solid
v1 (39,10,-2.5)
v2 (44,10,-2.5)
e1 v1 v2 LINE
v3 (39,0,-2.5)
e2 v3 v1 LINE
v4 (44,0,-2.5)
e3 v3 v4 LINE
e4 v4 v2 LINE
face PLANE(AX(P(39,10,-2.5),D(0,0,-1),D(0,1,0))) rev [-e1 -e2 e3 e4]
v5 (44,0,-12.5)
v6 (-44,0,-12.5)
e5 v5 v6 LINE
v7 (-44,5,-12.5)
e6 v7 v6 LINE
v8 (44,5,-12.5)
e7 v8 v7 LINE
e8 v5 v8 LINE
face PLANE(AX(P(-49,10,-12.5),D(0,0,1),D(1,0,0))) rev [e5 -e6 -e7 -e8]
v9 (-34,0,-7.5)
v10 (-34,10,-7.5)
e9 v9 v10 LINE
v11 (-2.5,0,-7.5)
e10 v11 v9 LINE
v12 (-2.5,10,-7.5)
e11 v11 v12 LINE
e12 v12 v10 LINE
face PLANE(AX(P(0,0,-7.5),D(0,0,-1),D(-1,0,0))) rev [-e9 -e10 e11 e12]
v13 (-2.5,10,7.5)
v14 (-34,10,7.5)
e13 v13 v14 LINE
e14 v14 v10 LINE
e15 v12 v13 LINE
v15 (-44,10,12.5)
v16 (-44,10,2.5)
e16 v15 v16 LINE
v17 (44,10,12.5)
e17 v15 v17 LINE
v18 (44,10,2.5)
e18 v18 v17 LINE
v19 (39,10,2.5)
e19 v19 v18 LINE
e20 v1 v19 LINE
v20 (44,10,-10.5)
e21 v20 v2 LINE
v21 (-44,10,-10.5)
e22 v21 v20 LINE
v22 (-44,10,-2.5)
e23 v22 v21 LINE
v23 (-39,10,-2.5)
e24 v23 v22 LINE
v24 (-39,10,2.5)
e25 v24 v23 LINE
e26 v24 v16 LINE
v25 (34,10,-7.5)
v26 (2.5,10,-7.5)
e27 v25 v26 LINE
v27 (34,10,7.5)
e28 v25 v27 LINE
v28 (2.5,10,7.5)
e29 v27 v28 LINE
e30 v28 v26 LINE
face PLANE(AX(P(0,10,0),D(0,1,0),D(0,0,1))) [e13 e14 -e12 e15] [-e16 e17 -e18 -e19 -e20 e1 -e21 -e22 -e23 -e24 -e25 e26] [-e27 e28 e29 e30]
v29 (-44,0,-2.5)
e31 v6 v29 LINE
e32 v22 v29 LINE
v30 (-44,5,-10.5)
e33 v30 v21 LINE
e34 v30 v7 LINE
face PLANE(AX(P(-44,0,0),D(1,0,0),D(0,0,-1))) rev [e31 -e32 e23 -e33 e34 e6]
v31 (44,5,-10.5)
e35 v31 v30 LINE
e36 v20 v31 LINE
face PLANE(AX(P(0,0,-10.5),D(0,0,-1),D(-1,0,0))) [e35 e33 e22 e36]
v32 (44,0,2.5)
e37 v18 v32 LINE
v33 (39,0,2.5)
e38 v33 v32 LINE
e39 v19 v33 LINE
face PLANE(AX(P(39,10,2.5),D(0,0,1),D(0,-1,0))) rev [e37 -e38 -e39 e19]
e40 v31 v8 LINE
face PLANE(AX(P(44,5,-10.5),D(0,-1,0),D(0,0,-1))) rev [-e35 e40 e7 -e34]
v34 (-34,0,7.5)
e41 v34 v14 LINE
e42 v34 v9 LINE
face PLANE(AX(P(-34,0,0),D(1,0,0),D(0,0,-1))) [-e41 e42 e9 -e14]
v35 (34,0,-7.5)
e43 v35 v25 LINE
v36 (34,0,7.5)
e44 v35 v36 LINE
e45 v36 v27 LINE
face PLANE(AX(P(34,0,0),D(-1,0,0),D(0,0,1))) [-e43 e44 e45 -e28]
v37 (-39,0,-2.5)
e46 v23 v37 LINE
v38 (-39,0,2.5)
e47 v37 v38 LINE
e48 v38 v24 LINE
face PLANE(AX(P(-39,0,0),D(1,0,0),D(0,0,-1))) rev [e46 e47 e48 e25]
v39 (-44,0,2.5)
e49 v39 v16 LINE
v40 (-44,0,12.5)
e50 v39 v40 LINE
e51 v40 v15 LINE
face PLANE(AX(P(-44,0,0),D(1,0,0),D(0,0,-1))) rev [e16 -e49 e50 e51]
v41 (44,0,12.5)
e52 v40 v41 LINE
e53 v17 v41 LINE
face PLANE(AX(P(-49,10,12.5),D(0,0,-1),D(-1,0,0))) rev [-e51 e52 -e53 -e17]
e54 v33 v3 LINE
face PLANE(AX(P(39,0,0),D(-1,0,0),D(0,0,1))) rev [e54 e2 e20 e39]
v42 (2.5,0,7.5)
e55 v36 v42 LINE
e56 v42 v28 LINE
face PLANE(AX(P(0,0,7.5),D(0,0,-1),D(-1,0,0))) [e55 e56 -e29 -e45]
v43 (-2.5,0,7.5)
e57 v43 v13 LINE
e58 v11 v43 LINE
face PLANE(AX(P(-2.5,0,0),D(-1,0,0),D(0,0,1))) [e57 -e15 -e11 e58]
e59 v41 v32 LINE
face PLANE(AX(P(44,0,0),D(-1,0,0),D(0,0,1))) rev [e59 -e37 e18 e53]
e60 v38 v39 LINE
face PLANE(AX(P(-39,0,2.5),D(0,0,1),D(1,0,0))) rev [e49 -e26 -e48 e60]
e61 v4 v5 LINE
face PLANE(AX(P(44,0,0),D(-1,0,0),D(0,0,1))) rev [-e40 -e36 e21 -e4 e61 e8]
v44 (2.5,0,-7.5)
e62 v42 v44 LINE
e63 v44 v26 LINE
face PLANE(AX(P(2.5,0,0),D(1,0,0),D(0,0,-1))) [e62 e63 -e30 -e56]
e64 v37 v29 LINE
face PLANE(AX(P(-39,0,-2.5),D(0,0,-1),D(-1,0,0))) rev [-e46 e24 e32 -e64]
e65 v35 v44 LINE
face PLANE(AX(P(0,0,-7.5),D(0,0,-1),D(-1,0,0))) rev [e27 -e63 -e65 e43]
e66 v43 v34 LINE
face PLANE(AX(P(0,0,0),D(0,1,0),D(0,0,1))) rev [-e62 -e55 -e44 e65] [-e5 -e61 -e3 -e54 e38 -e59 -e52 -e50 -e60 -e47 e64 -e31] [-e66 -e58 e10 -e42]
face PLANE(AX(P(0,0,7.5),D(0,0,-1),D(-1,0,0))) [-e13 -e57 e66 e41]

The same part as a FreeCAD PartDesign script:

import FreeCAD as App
import Part
import Sketcher


def add_polygon(sketch, points):
    """Adds a closed chain of lines whose ends are joined by coincident constraints."""
    first, n = sketch.GeometryCount, len(points)
    for a, b in zip(points, points[1:] + points[:1]):
        sketch.addGeometry(Part.LineSegment(App.Vector(*a, 0), App.Vector(*b, 0)), False)
    for i in range(n):
        sketch.addConstraint(Sketcher.Constraint("Coincident", first + i, 2, first + (i + 1) % n, 1))

doc = App.newDocument("Part")
params = doc.addObject("Spreadsheet::Sheet", "Params")
for row, (alias, value) in enumerate([
    ("sketch1_width", "98 mm"),
    ("sketch1_height", "25 mm"),
    ("pad1_length", "10 mm"),
    ("sketch2_height", "15 mm"),
    ("sketch2_width", "31.5 mm"),
    ("pocket1_length", "10 mm"),
    ("sketch3_width", "10 mm"),
    ("sketch3_height", "25 mm"),
    ("pocket2_length", "5 mm"),
    ("sketch4_width", "10 mm"),
    ("sketch4_height", "25 mm"),
    ("pocket3_length", "5 mm"),
    ("sketch5_width", "10 mm"),
    ("sketch5_height", "5 mm"),
    ("pocket4_length", "5 mm"),
    ("sketch6_width", "10 mm"),
    ("sketch6_height", "5 mm"),
    ("pocket5_length", "5 mm"),
    ("sketch7_width", "88 mm"),
    ("sketch7_height", "5 mm"),
    ("pocket6_length", "2 mm"),
], start=1):
    params.set(f"A{row}", alias)
    params.set(f"B{row}", "=" + value)
    params.setAlias(f"B{row}", alias)

body = doc.addObject("PartDesign::Body", "Body")

sketch1 = body.newObject("Sketcher::SketchObject", "Sketch")
sketch1.AttachmentSupport = (doc.getObject("XZ_Plane"), [""])
sketch1.MapMode = "FlatFace"
add_polygon(sketch1, [(-49, -12.5), (-49, 12.5), (49, 12.5), (49, -12.5)])
sketch1.addConstraint(Sketcher.Constraint("Vertical", 0))
sketch1.addConstraint(Sketcher.Constraint("Horizontal", 1))
sketch1.addConstraint(Sketcher.Constraint("Vertical", 2))
sketch1.addConstraint(Sketcher.Constraint("Horizontal", 3))
sketch1.addConstraint(Sketcher.Constraint("Symmetric", 0, 2, 2, 2, -1, 1))
sketch1.addConstraint(Sketcher.Constraint("DistanceX", 1, 1, 1, 2, 98.0))
sketch1.addConstraint(Sketcher.Constraint("DistanceY", 0, 1, 0, 2, 25.0))
sketch1.setExpression("Constraints[9]", "Params.sketch1_width")
sketch1.setExpression("Constraints[10]", "Params.sketch1_height")
pad1 = body.newObject("PartDesign::Pad", "Pad")
pad1.Profile = sketch1
pad1.setExpression("Length", "Params.pad1_length")
pad1.Reversed = True

sketch2 = body.newObject("Sketcher::SketchObject", "Sketch001")
sketch2.AttachmentSupport = (doc.getObject("XZ_Plane"), [""])
sketch2.MapMode = "FlatFace"
sketch2.AttachmentOffset = App.Placement(App.Vector(0, 0, -10), App.Rotation())
add_polygon(sketch2, [(-2.5, 7.5), (-2.5, -7.5), (-34, -7.5), (-34, 7.5)])
add_polygon(sketch2, [(2.5, -7.5), (2.5, 7.5), (34, 7.5), (34, -7.5)])
sketch2.addConstraint(Sketcher.Constraint("Vertical", 0))
sketch2.addConstraint(Sketcher.Constraint("Horizontal", 1))
sketch2.addConstraint(Sketcher.Constraint("Vertical", 2))
sketch2.addConstraint(Sketcher.Constraint("Horizontal", 3))
sketch2.addConstraint(Sketcher.Constraint("Vertical", 4))
sketch2.addConstraint(Sketcher.Constraint("Horizontal", 5))
sketch2.addConstraint(Sketcher.Constraint("Vertical", 6))
sketch2.addConstraint(Sketcher.Constraint("Horizontal", 7))
sketch2.addConstraint(Sketcher.Constraint("Symmetric", 0, 2, 4, 2, -1, 1))
sketch2.addConstraint(Sketcher.Constraint("Symmetric", 2, 2, 6, 2, -1, 1))
sketch2.addConstraint(Sketcher.Constraint("Horizontal", 3, 2, 4, 2))
sketch2.addConstraint(Sketcher.Constraint("DistanceY", 0, 2, 0, 1, 15.0))
sketch2.addConstraint(Sketcher.Constraint("DistanceX", 1, 2, 1, 1, 31.5))
sketch2.addConstraint(Sketcher.Constraint("DistanceX", 1, 2, -1, 1, 34.0))
sketch2.setExpression("Constraints[19]", "Params.sketch2_height")
sketch2.setExpression("Constraints[20]", "Params.sketch2_width")
pocket1 = body.newObject("PartDesign::Pocket", "Pocket")
pocket1.Profile = sketch2
pocket1.setExpression("Length", "Params.pocket1_length")
pocket1.Reversed = True

sketch3 = body.newObject("Sketcher::SketchObject", "Sketch002")
sketch3.AttachmentSupport = (doc.getObject("YZ_Plane"), [""])
sketch3.MapMode = "FlatFace"
sketch3.AttachmentOffset = App.Placement(App.Vector(0, 0, -49), App.Rotation())
add_polygon(sketch3, [(10, -12.5), (0, -12.5), (0, 12.5), (10, 12.5)])
sketch3.addConstraint(Sketcher.Constraint("Horizontal", 0))
sketch3.addConstraint(Sketcher.Constraint("Vertical", 1))
sketch3.addConstraint(Sketcher.Constraint("Horizontal", 2))
sketch3.addConstraint(Sketcher.Constraint("Vertical", 3))
sketch3.addConstraint(Sketcher.Constraint("Symmetric", 0, 2, 1, 2, -1, 1))
sketch3.addConstraint(Sketcher.Constraint("DistanceX", 0, 2, 0, 1, 10.0))
sketch3.addConstraint(Sketcher.Constraint("DistanceY", 1, 1, 1, 2, 25.0))
sketch3.setExpression("Constraints[9]", "Params.sketch3_width")
sketch3.setExpression("Constraints[10]", "Params.sketch3_height")
pocket2 = body.newObject("PartDesign::Pocket", "Pocket001")
pocket2.Profile = sketch3
pocket2.setExpression("Length", "Params.pocket2_length")
pocket2.Reversed = True

sketch4 = body.newObject("Sketcher::SketchObject", "Sketch003")
sketch4.AttachmentSupport = (doc.getObject("YZ_Plane"), [""])
sketch4.MapMode = "FlatFace"
sketch4.AttachmentOffset = App.Placement(App.Vector(0, 0, 49), App.Rotation())
add_polygon(sketch4, [(10, 12.5), (0, 12.5), (0, -12.5), (10, -12.5)])
sketch4.addConstraint(Sketcher.Constraint("Horizontal", 0))
sketch4.addConstraint(Sketcher.Constraint("Vertical", 1))
sketch4.addConstraint(Sketcher.Constraint("Horizontal", 2))
sketch4.addConstraint(Sketcher.Constraint("Vertical", 3))
sketch4.addConstraint(Sketcher.Constraint("Symmetric", 0, 2, 1, 2, -1, 1))
sketch4.addConstraint(Sketcher.Constraint("DistanceX", 0, 2, 0, 1, 10.0))
sketch4.addConstraint(Sketcher.Constraint("DistanceY", 1, 2, 1, 1, 25.0))
sketch4.setExpression("Constraints[9]", "Params.sketch4_width")
sketch4.setExpression("Constraints[10]", "Params.sketch4_height")
pocket3 = body.newObject("PartDesign::Pocket", "Pocket002")
pocket3.Profile = sketch4
pocket3.setExpression("Length", "Params.pocket3_length")

sketch5 = body.newObject("Sketcher::SketchObject", "Sketch004")
sketch5.AttachmentSupport = (doc.getObject("YZ_Plane"), [""])
sketch5.MapMode = "FlatFace"
sketch5.AttachmentOffset = App.Placement(App.Vector(0, 0, 44), App.Rotation())
add_polygon(sketch5, [(10, 2.5), (0, 2.5), (0, -2.5), (10, -2.5)])
sketch5.addConstraint(Sketcher.Constraint("Horizontal", 0))
sketch5.addConstraint(Sketcher.Constraint("Vertical", 1))
sketch5.addConstraint(Sketcher.Constraint("Horizontal", 2))
sketch5.addConstraint(Sketcher.Constraint("Vertical", 3))
sketch5.addConstraint(Sketcher.Constraint("Symmetric", 0, 2, 1, 2, -1, 1))
sketch5.addConstraint(Sketcher.Constraint("DistanceX", 0, 2, 0, 1, 10.0))
sketch5.addConstraint(Sketcher.Constraint("DistanceY", 1, 2, 1, 1, 5.0))
sketch5.setExpression("Constraints[9]", "Params.sketch5_width")
sketch5.setExpression("Constraints[10]", "Params.sketch5_height")
pocket4 = body.newObject("PartDesign::Pocket", "Pocket003")
pocket4.Profile = sketch5
pocket4.setExpression("Length", "Params.pocket4_length")

sketch6 = body.newObject("Sketcher::SketchObject", "Sketch005")
sketch6.AttachmentSupport = (doc.getObject("YZ_Plane"), [""])
sketch6.MapMode = "FlatFace"
sketch6.AttachmentOffset = App.Placement(App.Vector(0, 0, -44), App.Rotation())
add_polygon(sketch6, [(10, -2.5), (0, -2.5), (0, 2.5), (10, 2.5)])
sketch6.addConstraint(Sketcher.Constraint("Horizontal", 0))
sketch6.addConstraint(Sketcher.Constraint("Vertical", 1))
sketch6.addConstraint(Sketcher.Constraint("Horizontal", 2))
sketch6.addConstraint(Sketcher.Constraint("Vertical", 3))
sketch6.addConstraint(Sketcher.Constraint("Symmetric", 0, 2, 1, 2, -1, 1))
sketch6.addConstraint(Sketcher.Constraint("DistanceX", 0, 2, 0, 1, 10.0))
sketch6.addConstraint(Sketcher.Constraint("DistanceY", 1, 1, 1, 2, 5.0))
sketch6.setExpression("Constraints[9]", "Params.sketch6_width")
sketch6.setExpression("Constraints[10]", "Params.sketch6_height")
pocket5 = body.newObject("PartDesign::Pocket", "Pocket004")
pocket5.Profile = sketch6
pocket5.setExpression("Length", "Params.pocket5_length")
pocket5.Reversed = True

sketch7 = body.newObject("Sketcher::SketchObject", "Sketch006")
sketch7.AttachmentSupport = (doc.getObject("XY_Plane"), [""])
sketch7.MapMode = "FlatFace"
sketch7.AttachmentOffset = App.Placement(App.Vector(0, 0, -12.5), App.Rotation())
add_polygon(sketch7, [(44, 10), (44, 5), (-44, 5), (-44, 10)])
sketch7.addConstraint(Sketcher.Constraint("Vertical", 0))
sketch7.addConstraint(Sketcher.Constraint("Horizontal", 1))
sketch7.addConstraint(Sketcher.Constraint("Vertical", 2))
sketch7.addConstraint(Sketcher.Constraint("Horizontal", 3))
sketch7.addConstraint(Sketcher.Constraint("DistanceX", 1, 2, 1, 1, 88.0))
sketch7.addConstraint(Sketcher.Constraint("DistanceY", 0, 2, 0, 1, 5.0))
sketch7.addConstraint(Sketcher.Constraint("DistanceX", -1, 1, 0, 2, 44.0))
sketch7.addConstraint(Sketcher.Constraint("DistanceY", -1, 1, 0, 2, 5.0))
sketch7.setExpression("Constraints[8]", "Params.sketch7_width")
sketch7.setExpression("Constraints[9]", "Params.sketch7_height")
pocket6 = body.newObject("PartDesign::Pocket", "Pocket005")
pocket6.Profile = sketch7
pocket6.setExpression("Length", "Params.pocket6_length")
pocket6.Reversed = True

doc.recompute()
